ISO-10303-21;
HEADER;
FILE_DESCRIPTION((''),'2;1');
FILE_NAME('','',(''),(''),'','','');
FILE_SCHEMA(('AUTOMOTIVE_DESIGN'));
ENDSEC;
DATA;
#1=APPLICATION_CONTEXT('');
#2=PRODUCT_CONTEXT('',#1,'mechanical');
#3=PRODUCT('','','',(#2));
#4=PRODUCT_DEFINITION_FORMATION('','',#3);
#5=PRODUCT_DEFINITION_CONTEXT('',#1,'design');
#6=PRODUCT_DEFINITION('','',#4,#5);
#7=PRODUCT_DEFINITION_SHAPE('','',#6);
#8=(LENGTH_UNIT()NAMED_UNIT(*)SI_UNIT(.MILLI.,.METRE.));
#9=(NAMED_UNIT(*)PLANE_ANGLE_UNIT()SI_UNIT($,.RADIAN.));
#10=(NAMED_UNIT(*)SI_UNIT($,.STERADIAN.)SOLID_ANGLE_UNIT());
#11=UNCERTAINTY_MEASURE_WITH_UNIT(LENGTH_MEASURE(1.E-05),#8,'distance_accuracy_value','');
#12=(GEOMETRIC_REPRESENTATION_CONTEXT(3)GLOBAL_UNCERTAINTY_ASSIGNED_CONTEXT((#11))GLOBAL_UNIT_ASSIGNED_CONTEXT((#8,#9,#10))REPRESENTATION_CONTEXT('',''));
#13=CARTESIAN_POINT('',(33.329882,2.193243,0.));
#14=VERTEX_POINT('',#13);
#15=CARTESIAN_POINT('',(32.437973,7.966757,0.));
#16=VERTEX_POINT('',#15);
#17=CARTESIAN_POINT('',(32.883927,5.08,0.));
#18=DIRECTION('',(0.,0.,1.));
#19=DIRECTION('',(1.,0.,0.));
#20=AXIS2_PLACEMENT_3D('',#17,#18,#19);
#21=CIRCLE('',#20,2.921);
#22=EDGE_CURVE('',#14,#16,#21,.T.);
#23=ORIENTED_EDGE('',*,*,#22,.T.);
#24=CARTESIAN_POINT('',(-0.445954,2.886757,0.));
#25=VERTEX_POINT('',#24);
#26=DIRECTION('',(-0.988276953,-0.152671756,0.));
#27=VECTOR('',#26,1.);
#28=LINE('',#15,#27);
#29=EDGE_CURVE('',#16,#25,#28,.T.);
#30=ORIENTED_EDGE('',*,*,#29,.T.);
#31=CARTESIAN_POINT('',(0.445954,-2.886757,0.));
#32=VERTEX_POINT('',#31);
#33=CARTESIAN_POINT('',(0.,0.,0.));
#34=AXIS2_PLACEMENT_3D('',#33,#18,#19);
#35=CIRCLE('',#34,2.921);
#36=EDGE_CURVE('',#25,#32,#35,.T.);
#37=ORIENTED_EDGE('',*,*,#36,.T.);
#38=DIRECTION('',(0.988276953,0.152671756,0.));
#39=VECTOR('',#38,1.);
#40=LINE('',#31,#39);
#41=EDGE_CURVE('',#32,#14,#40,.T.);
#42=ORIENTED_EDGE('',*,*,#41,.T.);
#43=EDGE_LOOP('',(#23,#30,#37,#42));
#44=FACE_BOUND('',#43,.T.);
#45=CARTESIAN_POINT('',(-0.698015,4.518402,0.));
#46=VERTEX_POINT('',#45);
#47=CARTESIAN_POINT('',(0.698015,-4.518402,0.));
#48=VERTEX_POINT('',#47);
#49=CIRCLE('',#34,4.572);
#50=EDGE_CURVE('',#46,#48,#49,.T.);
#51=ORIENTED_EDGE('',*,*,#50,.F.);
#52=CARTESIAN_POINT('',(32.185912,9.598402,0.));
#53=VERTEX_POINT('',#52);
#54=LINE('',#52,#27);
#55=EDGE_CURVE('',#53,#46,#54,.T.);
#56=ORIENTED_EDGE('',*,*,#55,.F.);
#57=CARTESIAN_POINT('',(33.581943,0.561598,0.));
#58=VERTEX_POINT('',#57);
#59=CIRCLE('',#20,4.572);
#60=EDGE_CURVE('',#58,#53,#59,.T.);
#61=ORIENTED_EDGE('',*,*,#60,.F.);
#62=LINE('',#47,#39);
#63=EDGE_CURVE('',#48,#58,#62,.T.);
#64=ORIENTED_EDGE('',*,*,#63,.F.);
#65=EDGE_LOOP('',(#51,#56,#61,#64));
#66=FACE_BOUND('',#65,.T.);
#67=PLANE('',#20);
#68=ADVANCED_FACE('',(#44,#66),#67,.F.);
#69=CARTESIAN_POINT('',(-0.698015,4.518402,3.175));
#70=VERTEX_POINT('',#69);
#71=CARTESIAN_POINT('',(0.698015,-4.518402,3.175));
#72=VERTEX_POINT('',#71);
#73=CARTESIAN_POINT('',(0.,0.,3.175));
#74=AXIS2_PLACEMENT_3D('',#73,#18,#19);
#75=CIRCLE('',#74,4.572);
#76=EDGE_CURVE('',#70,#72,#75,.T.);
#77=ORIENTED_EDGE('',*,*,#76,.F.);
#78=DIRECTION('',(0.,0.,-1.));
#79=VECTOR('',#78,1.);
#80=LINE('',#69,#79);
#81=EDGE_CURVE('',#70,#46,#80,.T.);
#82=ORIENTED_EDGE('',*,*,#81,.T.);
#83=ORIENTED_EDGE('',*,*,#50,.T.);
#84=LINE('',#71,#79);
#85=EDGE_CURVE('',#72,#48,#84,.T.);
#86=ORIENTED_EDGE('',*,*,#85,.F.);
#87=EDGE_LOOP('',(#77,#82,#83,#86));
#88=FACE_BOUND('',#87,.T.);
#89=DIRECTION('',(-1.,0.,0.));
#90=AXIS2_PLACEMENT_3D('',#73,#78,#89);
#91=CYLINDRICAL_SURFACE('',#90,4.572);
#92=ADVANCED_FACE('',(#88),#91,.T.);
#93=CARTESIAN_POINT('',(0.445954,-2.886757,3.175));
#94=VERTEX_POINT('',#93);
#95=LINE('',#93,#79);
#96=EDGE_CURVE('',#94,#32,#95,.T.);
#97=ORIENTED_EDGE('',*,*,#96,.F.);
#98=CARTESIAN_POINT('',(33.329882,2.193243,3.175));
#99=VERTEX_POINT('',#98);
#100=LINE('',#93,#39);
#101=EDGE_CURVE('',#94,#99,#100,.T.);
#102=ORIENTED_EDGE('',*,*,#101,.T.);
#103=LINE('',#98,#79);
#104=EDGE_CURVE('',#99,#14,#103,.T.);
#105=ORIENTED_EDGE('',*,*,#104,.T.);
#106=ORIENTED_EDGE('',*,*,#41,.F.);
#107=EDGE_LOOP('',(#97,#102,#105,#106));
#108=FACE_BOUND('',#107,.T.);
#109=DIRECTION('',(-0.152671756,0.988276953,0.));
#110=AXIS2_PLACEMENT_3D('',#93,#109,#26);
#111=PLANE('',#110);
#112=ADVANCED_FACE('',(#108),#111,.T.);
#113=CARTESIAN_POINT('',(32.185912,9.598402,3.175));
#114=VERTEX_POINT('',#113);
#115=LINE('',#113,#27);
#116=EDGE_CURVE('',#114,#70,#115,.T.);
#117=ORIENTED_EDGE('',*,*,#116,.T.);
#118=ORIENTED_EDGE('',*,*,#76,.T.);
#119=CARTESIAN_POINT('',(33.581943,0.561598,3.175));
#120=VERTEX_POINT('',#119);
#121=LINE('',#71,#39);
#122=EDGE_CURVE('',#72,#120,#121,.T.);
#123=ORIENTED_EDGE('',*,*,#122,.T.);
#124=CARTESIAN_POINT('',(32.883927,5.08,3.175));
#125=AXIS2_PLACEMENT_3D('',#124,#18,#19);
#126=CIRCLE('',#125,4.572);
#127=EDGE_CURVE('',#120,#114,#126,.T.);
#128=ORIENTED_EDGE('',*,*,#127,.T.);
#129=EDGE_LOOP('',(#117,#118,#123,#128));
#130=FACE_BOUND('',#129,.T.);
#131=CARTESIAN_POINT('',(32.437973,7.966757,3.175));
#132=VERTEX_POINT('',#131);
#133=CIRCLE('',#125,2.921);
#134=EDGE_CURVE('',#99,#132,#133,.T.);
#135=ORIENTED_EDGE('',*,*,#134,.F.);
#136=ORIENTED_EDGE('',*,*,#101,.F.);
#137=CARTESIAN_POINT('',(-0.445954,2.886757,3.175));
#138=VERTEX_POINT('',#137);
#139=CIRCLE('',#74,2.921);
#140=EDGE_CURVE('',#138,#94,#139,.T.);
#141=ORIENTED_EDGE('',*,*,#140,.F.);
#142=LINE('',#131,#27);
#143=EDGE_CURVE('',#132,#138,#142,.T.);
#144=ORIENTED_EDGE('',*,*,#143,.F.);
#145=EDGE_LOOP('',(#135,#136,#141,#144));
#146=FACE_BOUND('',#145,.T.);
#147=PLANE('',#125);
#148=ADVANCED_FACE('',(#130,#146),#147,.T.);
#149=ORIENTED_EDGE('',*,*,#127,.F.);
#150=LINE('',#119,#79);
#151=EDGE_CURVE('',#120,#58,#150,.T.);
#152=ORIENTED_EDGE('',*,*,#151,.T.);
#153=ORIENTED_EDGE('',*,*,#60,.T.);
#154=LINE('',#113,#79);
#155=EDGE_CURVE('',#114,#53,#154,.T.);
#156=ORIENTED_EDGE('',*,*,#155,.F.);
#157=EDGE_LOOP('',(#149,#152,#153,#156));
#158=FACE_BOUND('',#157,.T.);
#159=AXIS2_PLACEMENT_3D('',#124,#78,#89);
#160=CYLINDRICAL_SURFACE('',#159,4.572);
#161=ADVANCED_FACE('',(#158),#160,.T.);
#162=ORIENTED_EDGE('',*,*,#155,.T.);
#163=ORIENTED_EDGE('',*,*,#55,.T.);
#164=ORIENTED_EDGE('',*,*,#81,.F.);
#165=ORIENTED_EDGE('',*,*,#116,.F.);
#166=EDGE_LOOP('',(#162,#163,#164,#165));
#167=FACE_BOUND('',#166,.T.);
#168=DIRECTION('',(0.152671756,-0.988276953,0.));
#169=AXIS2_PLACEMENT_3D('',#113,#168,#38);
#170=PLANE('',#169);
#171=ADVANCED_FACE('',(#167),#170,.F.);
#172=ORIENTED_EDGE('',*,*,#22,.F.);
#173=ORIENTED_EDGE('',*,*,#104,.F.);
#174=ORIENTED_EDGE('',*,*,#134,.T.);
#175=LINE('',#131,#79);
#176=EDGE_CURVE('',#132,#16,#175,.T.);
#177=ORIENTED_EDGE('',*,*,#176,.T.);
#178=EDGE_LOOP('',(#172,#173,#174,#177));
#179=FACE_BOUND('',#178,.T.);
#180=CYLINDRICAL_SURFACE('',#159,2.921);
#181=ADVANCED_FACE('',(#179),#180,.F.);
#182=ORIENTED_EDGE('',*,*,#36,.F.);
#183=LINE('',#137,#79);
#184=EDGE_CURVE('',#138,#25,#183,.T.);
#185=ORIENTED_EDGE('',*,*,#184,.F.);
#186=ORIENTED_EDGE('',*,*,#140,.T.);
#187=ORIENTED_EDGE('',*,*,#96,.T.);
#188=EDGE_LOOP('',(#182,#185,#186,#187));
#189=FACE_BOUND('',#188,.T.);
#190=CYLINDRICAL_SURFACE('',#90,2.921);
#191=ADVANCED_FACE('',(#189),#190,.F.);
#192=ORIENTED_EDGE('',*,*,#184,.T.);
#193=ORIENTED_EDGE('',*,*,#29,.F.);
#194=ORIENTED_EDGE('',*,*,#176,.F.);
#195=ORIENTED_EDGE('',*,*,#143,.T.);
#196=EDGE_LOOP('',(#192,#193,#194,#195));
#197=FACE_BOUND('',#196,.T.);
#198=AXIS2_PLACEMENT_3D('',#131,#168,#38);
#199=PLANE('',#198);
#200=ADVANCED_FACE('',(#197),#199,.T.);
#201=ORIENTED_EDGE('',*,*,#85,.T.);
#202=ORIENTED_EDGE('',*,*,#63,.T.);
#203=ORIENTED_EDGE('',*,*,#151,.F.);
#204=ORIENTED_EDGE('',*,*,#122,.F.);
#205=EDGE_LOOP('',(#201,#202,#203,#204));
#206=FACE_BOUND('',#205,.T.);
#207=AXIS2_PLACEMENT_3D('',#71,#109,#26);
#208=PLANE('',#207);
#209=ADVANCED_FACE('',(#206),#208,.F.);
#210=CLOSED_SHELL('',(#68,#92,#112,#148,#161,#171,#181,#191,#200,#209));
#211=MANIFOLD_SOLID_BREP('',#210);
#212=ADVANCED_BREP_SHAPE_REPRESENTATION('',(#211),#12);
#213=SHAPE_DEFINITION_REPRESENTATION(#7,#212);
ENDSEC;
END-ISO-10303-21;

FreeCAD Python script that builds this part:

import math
import FreeCAD as App
import Part
import Sketcher

V = App.Vector
Q = App.Units.Quantity

doc = App.newDocument("Part")
body = doc.addObject("PartDesign::Body", "Body")

# Sketch on XY plane
sketch1 = doc.addObject("Sketcher::SketchObject", "Sketch")
body.addObject(sketch1)
sketch1.AttachmentSupport = (doc.XY_Plane, [""])
sketch1.MapMode = "FlatFace"
sketch1.addGeometry(Part.LineSegment(V(32.2, 9.6, 0), V(-0.7, 4.5, 0)), False)
sketch1.addGeometry(Part.ArcOfCircle(Part.Circle(V(0, 0, 0), V(0, 0, 1), 4.6), math.radians(99), math.radians(279)), False)
sketch1.addGeometry(Part.LineSegment(V(0.7, -4.5, 0), V(33.6, 0.6, 0)), False)
sketch1.addGeometry(Part.ArcOfCircle(Part.Circle(V(32.9, 5.1, 0), V(0, 0, 1), 4.6), math.radians(-81), math.radians(99)), False)
sketch1.addGeometry(Part.LineSegment(V(33.3, 2.2, 0), V(0.4, -2.9, 0)), False)
sketch1.addGeometry(Part.ArcOfCircle(Part.Circle(V(0, 0, 0), V(0, 0, 1), 2.9), math.radians(99), math.radians(279)), False)
sketch1.addGeometry(Part.LineSegment(V(-0.4, 2.9, 0), V(32.4, 8, 0)), False)
sketch1.addGeometry(Part.ArcOfCircle(Part.Circle(V(32.9, 5.1, 0), V(0, 0, 1), 2.9), math.radians(-81), math.radians(99)), False)
sketch1.addConstraint(Sketcher.Constraint("Tangent", 0, 2, 1, 1))
sketch1.addConstraint(Sketcher.Constraint("Tangent", 1, 2, 2, 1))
sketch1.addConstraint(Sketcher.Constraint("Tangent", 2, 2, 3, 1))
sketch1.addConstraint(Sketcher.Constraint("Tangent", 3, 2, 0, 1))
sketch1.addConstraint(Sketcher.Constraint("Tangent", 4, 2, 5, 2))
sketch1.addConstraint(Sketcher.Constraint("Tangent", 5, 1, 6, 1))
sketch1.addConstraint(Sketcher.Constraint("Tangent", 6, 2, 7, 2))
sketch1.addConstraint(Sketcher.Constraint("Tangent", 7, 1, 4, 1))
sketch1.addConstraint(Sketcher.Constraint("Coincident", 1, 3, -1, 1))
sketch1.addConstraint(Sketcher.Constraint("Coincident", 5, 3, -1, 1))
sketch1.addConstraint(Sketcher.Constraint("Coincident", 7, 3, 3, 3))
sketch1.addConstraint(Sketcher.Constraint("Equal", 1, 3))
sketch1.addConstraint(Sketcher.Constraint("Equal", 5, 7))
sketch1.addConstraint(Sketcher.Constraint("Radius", 1, Q("0.18 in")))
sketch1.addConstraint(Sketcher.Constraint("Radius", 5, Q("0.115 in")))
sketch1.addConstraint(Sketcher.Constraint("DistanceY", -1, 1, 3, 3, Q("0.2 in")))
sketch1.addConstraint(Sketcher.Constraint("Distance", 0, Q("1.31 in")))
pad1 = doc.addObject("PartDesign::Pad", "Pad")
body.addObject(pad1)
pad1.Profile = sketch1
pad1.Length = Q("0.125 in")

doc.recompute()
